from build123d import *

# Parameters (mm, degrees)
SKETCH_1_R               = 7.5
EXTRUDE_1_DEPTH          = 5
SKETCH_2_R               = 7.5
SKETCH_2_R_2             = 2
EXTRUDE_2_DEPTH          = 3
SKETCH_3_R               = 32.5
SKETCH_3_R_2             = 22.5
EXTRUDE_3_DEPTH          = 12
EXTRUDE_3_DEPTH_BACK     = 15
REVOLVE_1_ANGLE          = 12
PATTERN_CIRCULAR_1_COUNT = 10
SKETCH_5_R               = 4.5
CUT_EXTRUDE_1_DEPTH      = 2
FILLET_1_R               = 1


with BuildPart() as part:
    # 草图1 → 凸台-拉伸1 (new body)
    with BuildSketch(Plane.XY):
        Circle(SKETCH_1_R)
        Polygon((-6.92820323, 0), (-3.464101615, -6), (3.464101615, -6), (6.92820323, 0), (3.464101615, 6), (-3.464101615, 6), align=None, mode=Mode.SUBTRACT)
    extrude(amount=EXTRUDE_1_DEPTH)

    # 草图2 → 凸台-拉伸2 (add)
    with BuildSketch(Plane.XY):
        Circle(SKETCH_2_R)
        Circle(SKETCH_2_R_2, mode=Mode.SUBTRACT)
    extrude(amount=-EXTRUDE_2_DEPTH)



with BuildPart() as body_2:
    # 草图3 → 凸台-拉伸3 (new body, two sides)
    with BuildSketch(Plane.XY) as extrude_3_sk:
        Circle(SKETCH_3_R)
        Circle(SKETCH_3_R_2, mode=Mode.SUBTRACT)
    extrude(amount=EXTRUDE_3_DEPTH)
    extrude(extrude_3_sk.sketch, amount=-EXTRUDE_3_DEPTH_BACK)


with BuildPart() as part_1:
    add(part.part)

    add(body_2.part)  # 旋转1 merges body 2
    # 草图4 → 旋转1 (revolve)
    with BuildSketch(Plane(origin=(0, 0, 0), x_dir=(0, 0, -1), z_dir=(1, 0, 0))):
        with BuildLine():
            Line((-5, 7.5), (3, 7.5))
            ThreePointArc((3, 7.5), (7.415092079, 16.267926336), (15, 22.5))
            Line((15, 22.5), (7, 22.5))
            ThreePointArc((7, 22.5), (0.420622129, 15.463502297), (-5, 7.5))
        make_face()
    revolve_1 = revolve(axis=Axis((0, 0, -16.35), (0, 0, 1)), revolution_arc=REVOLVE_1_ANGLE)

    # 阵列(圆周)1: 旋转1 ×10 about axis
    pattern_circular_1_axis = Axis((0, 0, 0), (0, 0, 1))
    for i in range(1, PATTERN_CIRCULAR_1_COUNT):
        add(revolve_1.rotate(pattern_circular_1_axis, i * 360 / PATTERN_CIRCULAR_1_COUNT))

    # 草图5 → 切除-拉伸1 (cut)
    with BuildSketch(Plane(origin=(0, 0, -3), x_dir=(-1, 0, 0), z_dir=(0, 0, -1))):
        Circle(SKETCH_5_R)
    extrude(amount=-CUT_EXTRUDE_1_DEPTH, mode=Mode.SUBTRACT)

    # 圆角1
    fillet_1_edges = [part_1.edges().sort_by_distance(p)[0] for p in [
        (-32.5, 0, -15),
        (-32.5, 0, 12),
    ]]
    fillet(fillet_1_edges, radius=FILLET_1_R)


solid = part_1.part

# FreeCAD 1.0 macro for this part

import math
import FreeCAD as App
import Part
import Sketcher
from FreeCAD import Vector
Q = App.Units.Quantity


def edges_at(feature, points):
    """Names of the edges that pass closest to the given points."""
    edges = feature.Shape.Edges
    near = lambda p: min(range(len(edges)), key=lambda i: edges[i].distToShape(Part.Vertex(*p))[0])
    return sorted({f"Edge{near(p) + 1}" for p in points})


def add_polygon(sketch, points):
    """Adds a closed chain of lines whose ends are joined by coincident constraints."""
    first, n = sketch.GeometryCount, len(points)
    for a, b in zip(points, points[1:] + points[:1]):
        sketch.addGeometry(Part.LineSegment(App.Vector(*a, 0), App.Vector(*b, 0)), False)
    for i in range(n):
        sketch.addConstraint(Sketcher.Constraint("Coincident", first + i, 2, first + (i + 1) % n, 1))

doc = App.newDocument("Part")
body = doc.addObject("PartDesign::Body", "Body")

# Sketch on XY plane
sketch1 = doc.addObject("Sketcher::SketchObject", "Sketch")
body.addObject(sketch1)
sketch1.AttachmentSupport = (doc.XY_Plane, [""])
sketch1.MapMode = "FlatFace"
sketch1.addGeometry(Part.Circle(Vector(0, 0, 0), Vector(0, 0, 1), 7.5), False)  # 0
add_polygon(sketch1, [(-3.464102, -6), (-6.928203, 0), (-3.464102, 6), (3.464102, 6), (6.928203, 0), (3.464102, -6)])  # lines 1-6
sketch1.addConstraint([
    Sketcher.Constraint("Horizontal", 3),
    Sketcher.Constraint("Horizontal", 6),
    Sketcher.Constraint("Coincident", 0, 3, -1, 1),
    Sketcher.Constraint("Symmetric", 1, 2, 4, 2, -1, 1),
    Sketcher.Constraint("Symmetric", 2, 2, 5, 2, -1, 1),
    Sketcher.Constraint("PointOnObject", 1, 2, -1),
    Sketcher.Constraint("Parallel", 1, 4),
    Sketcher.Constraint("Vertical", 3, 2, 5, 2),
    Sketcher.Constraint("Diameter", 0, Q("15 mm")),
    Sketcher.Constraint("Angle", 1, Q("120 deg")),
    Sketcher.Constraint("DistanceY", -1, 1, 2, 2, Q("6 mm")),
    Sketcher.Constraint("DistanceX", 2, 2, -1, 1, Q("3.464102 mm")),
])
pad1 = doc.addObject("PartDesign::Pad", "Pad")
body.addObject(pad1)
pad1.Profile = sketch1
pad1.Length = 5

# Sketch on XY plane
sketch2 = doc.addObject("Sketcher::SketchObject", "Sketch001")
body.addObject(sketch2)
sketch2.AttachmentSupport = (doc.XY_Plane, [""])
sketch2.MapMode = "FlatFace"
sketch2.addGeometry([
    Part.Circle(Vector(0, 0, 0), Vector(0, 0, 1), 7.5),
    Part.Circle(Vector(0, 0, 0), Vector(0, 0, 1), 2),
], False)
sketch2.addConstraint([
    Sketcher.Constraint("Coincident", 0, 3, -1, 1),
    Sketcher.Constraint("Coincident", 1, 3, -1, 1),
    Sketcher.Constraint("Diameter", 0, Q("15 mm")),
    Sketcher.Constraint("Diameter", 1, Q("4 mm")),
])
pad2 = doc.addObject("PartDesign::Pad", "Pad001")
body.addObject(pad2)
pad2.Profile = sketch2
pad2.Length = 3
pad2.Reversed = True
body2 = doc.addObject("PartDesign::Body", "Body001")

# Sketch on XY plane
sketch3 = doc.addObject("Sketcher::SketchObject", "Sketch002")
body2.addObject(sketch3)
sketch3.AttachmentSupport = (doc.getObject("XY_Plane001"), [""])
sketch3.MapMode = "FlatFace"
sketch3.addGeometry([
    Part.Circle(Vector(0, 0, 0), Vector(0, 0, 1), 32.5),
    Part.Circle(Vector(0, 0, 0), Vector(0, 0, 1), 22.5),
], False)
sketch3.addConstraint([
    Sketcher.Constraint("Coincident", 0, 3, -1, 1),
    Sketcher.Constraint("Coincident", 1, 3, -1, 1),
    Sketcher.Constraint("Diameter", 0, Q("65 mm")),
    Sketcher.Constraint("Diameter", 1, Q("45 mm")),
])
pad3 = doc.addObject("PartDesign::Pad", "Pad002")
body2.addObject(pad3)
pad3.Profile = sketch3
pad3.Type = "TwoLengths"
pad3.Length = 12
pad3.Length2 = 15
body.AllowCompound = True
doc.recompute()

boolean = doc.addObject("PartDesign::Boolean", "Boolean")
body.addObject(boolean)
boolean.Type = "Fuse"
boolean.addObjects([body2])

# Sketch on YZ plane
sketch4 = doc.addObject("Sketcher::SketchObject", "Sketch003")
body.addObject(sketch4)
sketch4.AttachmentSupport = (doc.YZ_Plane, [""])
sketch4.MapMode = "FlatFace"
sketch4.addGeometry([
    Part.LineSegment(Vector(7.5, 5, 0), Vector(7.5, -3, 0)),
    Part.ArcOfCircle(Part.Circle(Vector(1.437555, -25.953056, 0), Vector(0, 0, 1), 23.740178), math.radians(27.475684), math.radians(75.204699)),
    Part.LineSegment(Vector(22.5, -15, 0), Vector(22.5, -7, 0)),
    Part.ArcOfCircle(Part.Circle(Vector(-23.603008, -49.25376, 0), Vector(0, 0, 1), 62.53693), math.radians(42.505496), math.radians(60.174887)),
], False)
sketch4.addConstraint([
    Sketcher.Constraint("Coincident", 0, 2, 1, 2),
    Sketcher.Constraint("Coincident", 1, 1, 2, 1),
    Sketcher.Constraint("Coincident", 2, 2, 3, 1),
    Sketcher.Constraint("Coincident", 3, 2, 0, 1),
    Sketcher.Constraint("Vertical", 0),
    Sketcher.Constraint("Vertical", 2),
    Sketcher.Constraint("Equal", 0, 2),
    Sketcher.Constraint("DistanceY", 0, 2, 0, 1, Q("8 mm")),
    Sketcher.Constraint("DistanceY", 0, 2, -1, 1, Q("3 mm")),
    Sketcher.Constraint("DistanceY", 1, 1, -1, 1, Q("15 mm")),
    Sketcher.Constraint("DistanceX", 0, 2, 1, 1, Q("15 mm")),
    Sketcher.Constraint("DistanceX", -1, 1, 0, 2, Q("7.5 mm")),
    Sketcher.Constraint("Radius", 3, Q("62.53693 mm")),
    Sketcher.Constraint("Radius", 1, Q("23.740178 mm")),
])
revolution = doc.addObject("PartDesign::Revolution", "Revolution")
body.addObject(revolution)
revolution.Profile = sketch4
revolution.ReferenceAxis = (sketch4, ["V_Axis"])
revolution.Angle = 12
doc.recompute()

polarpattern = doc.addObject("PartDesign::PolarPattern", "PolarPattern")
body.addObject(polarpattern)
polarpattern.Originals = [revolution]
polarpattern.Axis = (doc.Z_Axis, [""])
polarpattern.Angle = 360
polarpattern.Occurrences = 10
body.Tip = polarpattern

# Sketch on XY plane
sketch5 = doc.addObject("Sketcher::SketchObject", "Sketch004")
body.addObject(sketch5)
sketch5.AttachmentSupport = (doc.XY_Plane, [""])
sketch5.MapMode = "FlatFace"
sketch5.AttachmentOffset = App.Placement(Vector(0, 0, -3), App.Rotation())
sketch5.addGeometry(Part.Circle(Vector(0, 0, 0), Vector(0, 0, 1), 4.5), False)
sketch5.addConstraint([
    Sketcher.Constraint("Coincident", 0, 3, -1, 1),
    Sketcher.Constraint("Diameter", 0, Q("9 mm")),
])
pocket1 = doc.addObject("PartDesign::Pocket", "Pocket")
body.addObject(pocket1)
pocket1.Profile = sketch5
pocket1.Length = 2
pocket1.Reversed = True
doc.recompute()

fillet = doc.addObject("PartDesign::Fillet", "Fillet")
body.addObject(fillet)
fillet.Base = (pocket1, edges_at(pocket1, [(-32.5, 0, -15), (-32.5, 0, 12)]))
fillet.Radius = 1

doc.recompute()
